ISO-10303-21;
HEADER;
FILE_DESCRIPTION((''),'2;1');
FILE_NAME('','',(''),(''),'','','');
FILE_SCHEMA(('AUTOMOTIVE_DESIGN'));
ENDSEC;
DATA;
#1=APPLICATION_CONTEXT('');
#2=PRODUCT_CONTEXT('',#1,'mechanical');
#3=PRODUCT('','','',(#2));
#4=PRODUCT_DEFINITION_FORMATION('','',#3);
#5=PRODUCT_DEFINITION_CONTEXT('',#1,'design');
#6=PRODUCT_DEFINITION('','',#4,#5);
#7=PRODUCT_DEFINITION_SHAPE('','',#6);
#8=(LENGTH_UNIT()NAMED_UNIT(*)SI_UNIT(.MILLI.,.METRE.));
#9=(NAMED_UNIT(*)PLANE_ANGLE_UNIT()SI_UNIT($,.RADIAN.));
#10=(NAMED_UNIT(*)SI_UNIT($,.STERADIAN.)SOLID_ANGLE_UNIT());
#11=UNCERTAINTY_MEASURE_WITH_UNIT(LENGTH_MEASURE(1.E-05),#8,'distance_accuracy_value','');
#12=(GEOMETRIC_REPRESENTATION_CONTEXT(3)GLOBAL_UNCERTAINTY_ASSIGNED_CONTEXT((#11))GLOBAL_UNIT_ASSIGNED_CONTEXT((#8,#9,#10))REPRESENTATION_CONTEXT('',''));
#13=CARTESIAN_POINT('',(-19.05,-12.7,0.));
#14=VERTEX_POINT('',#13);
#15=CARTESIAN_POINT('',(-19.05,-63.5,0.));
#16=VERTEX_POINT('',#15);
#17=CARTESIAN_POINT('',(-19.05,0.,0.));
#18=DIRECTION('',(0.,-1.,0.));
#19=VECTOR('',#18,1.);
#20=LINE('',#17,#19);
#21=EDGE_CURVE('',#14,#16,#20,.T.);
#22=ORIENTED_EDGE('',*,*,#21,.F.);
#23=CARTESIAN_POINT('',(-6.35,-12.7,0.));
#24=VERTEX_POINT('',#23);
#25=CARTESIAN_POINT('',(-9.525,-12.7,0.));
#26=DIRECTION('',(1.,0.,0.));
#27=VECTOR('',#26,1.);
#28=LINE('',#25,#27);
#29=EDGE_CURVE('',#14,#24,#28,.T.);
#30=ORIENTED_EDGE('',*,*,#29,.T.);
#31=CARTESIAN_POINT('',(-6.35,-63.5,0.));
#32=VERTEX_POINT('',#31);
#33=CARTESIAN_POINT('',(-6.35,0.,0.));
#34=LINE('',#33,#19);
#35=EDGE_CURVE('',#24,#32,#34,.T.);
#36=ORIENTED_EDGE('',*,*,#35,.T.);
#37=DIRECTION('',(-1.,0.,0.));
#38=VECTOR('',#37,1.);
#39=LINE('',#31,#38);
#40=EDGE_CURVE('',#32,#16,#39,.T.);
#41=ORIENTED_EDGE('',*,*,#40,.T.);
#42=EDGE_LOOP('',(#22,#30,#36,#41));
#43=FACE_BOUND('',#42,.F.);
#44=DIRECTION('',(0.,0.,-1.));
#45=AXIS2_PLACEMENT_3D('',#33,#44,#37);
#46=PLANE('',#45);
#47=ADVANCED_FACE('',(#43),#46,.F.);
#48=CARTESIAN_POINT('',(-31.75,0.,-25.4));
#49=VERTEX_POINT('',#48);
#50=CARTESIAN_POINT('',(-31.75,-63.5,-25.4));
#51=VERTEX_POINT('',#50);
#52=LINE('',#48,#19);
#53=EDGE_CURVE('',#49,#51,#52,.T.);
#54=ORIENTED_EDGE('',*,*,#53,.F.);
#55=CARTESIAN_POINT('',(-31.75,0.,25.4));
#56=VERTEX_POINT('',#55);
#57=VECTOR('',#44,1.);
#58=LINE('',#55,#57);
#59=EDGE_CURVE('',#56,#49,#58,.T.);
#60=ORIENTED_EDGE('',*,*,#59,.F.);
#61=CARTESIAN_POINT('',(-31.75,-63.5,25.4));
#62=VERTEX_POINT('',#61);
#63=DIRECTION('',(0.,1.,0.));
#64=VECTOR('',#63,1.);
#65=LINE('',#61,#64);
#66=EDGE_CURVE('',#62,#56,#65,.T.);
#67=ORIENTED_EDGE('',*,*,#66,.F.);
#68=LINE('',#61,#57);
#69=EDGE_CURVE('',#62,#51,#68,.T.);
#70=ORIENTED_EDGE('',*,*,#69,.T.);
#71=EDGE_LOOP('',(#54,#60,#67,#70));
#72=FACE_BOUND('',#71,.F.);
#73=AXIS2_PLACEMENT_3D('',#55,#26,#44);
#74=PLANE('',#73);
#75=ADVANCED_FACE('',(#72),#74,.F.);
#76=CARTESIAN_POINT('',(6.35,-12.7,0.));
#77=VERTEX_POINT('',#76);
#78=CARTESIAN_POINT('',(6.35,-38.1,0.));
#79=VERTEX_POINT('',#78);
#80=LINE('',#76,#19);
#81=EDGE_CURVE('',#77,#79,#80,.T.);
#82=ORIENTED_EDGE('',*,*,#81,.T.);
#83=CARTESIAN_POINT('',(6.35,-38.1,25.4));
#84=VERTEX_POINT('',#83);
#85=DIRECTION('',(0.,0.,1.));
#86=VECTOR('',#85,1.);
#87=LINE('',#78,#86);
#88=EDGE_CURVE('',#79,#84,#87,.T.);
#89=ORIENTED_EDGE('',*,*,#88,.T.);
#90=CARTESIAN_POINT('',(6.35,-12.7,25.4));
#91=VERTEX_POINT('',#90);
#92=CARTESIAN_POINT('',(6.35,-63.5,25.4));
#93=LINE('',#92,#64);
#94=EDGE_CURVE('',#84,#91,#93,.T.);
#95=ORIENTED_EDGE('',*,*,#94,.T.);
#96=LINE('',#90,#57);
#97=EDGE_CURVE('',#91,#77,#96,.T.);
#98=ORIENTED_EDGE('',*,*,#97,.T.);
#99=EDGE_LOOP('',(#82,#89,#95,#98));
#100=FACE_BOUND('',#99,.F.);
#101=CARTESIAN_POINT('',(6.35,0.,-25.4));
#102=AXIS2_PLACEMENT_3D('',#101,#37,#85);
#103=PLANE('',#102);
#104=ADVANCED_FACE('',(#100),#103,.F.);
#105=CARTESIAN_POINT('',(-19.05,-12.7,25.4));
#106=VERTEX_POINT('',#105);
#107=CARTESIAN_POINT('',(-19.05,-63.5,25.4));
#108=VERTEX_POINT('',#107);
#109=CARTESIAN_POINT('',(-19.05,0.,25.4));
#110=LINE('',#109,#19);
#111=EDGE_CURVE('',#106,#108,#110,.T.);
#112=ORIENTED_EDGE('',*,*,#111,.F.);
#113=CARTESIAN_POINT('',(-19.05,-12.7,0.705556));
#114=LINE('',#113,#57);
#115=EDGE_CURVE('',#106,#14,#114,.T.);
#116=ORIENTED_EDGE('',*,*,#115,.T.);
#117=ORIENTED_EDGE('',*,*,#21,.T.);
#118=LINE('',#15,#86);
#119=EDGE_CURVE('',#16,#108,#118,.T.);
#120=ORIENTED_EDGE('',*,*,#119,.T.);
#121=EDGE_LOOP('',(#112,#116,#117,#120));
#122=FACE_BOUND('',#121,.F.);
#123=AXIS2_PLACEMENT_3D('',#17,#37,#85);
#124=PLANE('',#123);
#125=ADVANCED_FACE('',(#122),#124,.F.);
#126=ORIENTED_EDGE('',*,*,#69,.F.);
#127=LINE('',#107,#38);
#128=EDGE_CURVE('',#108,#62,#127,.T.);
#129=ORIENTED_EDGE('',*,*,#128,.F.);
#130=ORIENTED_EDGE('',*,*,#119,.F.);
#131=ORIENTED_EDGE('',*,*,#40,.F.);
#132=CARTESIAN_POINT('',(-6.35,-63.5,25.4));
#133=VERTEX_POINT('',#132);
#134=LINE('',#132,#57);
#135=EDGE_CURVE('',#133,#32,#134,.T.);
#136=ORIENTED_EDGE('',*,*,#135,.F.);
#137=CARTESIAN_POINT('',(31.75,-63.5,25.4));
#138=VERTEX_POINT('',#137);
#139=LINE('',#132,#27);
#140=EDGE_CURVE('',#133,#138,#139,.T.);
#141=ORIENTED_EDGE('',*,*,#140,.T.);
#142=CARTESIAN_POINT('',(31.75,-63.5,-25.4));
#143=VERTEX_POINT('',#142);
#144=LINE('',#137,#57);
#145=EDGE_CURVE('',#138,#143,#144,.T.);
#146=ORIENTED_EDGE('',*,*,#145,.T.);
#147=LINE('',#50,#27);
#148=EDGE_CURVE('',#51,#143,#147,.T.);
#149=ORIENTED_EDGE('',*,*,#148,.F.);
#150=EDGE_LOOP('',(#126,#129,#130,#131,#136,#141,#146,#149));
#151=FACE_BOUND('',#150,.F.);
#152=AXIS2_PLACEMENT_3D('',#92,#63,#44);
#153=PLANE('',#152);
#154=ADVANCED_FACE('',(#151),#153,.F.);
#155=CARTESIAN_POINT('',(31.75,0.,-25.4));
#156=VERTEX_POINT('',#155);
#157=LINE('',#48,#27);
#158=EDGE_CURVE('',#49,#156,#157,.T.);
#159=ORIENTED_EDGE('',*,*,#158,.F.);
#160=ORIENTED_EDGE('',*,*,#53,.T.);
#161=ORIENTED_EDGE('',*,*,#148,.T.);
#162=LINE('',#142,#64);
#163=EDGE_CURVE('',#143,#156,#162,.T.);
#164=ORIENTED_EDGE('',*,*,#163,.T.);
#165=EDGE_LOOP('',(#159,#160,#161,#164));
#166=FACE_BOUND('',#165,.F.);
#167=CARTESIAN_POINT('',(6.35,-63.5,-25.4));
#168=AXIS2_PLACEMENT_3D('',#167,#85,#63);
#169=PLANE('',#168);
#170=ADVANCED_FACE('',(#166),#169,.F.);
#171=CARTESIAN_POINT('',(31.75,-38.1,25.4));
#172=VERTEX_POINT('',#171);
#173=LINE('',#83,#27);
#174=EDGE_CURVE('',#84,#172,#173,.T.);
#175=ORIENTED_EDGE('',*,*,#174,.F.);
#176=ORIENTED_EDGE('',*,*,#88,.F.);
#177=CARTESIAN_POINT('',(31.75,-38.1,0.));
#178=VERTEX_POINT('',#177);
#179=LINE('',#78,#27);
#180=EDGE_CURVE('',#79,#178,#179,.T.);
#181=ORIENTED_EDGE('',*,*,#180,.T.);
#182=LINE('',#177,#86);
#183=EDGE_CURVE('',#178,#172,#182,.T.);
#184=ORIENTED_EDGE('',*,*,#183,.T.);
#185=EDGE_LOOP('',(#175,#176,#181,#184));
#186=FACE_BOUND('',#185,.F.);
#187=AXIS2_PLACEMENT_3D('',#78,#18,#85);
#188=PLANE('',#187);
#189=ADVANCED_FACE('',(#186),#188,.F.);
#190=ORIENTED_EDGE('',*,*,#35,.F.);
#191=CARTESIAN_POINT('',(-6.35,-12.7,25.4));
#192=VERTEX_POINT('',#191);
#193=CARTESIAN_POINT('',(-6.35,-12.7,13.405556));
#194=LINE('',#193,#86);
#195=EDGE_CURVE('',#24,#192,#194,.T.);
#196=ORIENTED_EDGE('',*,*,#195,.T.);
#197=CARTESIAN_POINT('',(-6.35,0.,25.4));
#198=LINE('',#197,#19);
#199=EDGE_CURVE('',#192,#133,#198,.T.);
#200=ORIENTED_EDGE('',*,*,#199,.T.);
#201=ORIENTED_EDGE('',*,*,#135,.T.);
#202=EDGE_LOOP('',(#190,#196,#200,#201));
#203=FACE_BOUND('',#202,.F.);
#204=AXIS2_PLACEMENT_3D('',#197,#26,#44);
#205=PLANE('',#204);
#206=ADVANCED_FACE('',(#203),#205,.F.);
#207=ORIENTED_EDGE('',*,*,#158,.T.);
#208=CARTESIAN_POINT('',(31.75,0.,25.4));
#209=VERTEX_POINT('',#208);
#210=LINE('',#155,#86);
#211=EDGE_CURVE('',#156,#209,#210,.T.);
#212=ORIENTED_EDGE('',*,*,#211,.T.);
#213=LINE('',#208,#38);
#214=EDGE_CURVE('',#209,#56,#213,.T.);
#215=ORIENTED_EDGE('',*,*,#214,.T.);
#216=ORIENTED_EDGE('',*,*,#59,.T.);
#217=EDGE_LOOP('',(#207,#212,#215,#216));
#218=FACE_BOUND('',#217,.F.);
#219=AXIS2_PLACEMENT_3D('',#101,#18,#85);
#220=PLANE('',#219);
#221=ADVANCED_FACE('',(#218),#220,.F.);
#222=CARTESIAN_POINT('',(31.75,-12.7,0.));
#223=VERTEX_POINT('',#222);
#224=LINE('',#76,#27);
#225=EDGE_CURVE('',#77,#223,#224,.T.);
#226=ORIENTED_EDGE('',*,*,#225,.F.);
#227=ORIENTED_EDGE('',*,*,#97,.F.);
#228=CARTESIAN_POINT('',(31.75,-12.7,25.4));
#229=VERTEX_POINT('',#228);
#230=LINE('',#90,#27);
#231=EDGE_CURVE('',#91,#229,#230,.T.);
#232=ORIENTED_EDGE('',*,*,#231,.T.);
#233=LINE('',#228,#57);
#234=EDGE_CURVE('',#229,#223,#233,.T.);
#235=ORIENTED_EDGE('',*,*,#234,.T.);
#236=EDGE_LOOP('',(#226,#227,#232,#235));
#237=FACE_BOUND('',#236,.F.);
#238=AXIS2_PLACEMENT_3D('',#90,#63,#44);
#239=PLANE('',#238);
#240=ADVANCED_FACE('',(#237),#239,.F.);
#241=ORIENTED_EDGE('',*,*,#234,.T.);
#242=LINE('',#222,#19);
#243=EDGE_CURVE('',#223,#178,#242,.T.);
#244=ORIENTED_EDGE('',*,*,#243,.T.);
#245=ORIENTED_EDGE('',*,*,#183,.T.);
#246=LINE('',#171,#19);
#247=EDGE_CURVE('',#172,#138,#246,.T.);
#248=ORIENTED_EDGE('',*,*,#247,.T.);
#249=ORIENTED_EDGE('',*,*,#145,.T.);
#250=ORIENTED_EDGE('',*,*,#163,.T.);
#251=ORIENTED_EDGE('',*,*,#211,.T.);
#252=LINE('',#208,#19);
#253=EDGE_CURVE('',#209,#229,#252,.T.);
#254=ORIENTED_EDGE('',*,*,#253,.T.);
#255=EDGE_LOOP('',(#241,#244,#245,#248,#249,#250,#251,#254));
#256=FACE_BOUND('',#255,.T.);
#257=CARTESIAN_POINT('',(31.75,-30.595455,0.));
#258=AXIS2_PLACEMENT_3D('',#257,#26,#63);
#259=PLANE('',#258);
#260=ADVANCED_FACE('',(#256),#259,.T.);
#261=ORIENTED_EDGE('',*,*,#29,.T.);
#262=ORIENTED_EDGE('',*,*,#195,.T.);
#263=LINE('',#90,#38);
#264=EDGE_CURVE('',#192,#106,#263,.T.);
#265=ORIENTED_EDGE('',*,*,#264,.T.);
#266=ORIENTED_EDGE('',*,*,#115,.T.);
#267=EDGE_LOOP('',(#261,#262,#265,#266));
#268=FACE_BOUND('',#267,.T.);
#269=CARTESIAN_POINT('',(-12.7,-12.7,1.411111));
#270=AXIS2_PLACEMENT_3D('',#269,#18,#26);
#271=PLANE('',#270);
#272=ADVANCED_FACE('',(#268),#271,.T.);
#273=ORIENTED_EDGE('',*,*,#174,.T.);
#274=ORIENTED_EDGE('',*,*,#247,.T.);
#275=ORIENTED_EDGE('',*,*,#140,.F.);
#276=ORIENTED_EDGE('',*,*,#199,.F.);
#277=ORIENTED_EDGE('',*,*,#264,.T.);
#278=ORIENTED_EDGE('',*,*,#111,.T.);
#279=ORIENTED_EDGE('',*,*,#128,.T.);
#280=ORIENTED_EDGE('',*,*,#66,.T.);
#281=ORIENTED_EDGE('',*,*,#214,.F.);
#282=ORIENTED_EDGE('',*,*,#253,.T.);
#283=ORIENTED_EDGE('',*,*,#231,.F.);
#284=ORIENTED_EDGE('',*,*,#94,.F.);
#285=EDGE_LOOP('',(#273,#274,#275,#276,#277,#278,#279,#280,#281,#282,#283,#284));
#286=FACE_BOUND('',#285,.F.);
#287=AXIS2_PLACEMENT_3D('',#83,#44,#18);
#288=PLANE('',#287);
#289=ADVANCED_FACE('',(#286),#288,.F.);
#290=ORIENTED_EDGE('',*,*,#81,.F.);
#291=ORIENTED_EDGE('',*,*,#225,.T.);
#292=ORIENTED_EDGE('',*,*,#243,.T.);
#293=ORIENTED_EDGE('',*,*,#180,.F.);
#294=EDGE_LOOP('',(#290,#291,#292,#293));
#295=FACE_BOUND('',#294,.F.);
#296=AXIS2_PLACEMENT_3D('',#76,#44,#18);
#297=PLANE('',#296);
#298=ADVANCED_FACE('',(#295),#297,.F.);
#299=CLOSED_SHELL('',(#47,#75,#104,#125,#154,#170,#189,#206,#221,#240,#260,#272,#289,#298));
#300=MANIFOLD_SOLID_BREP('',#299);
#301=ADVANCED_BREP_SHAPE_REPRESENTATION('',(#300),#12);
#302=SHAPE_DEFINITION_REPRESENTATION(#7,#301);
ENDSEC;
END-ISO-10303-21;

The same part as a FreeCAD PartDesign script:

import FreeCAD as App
import Part
import Sketcher
from FreeCAD import Vector
Q = App.Units.Quantity


def add_polygon(sketch, points):
    """Adds a closed chain of lines whose ends are joined by coincident constraints."""
    first, n = sketch.GeometryCount, len(points)
    for a, b in zip(points, points[1:] + points[:1]):
        sketch.addGeometry(Part.LineSegment(App.Vector(*a, 0), App.Vector(*b, 0)), False)
    for i in range(n):
        sketch.addConstraint(Sketcher.Constraint("Coincident", first + i, 2, first + (i + 1) % n, 1))

doc = App.newDocument("Part")
body = doc.addObject("PartDesign::Body", "Body")

# Sketch on XZ plane
sketch1 = body.newObject("Sketcher::SketchObject", "Sketch")
sketch1.AttachmentSupport = (doc.getObject("XZ_Plane"), [""])
sketch1.MapMode = "FlatFace"
add_polygon(sketch1, [(-32, 25), (-32, -25), (6, -25), (6, 25)])  # lines 0-3
sketch1.addConstraint([
    Sketcher.Constraint("Vertical", 0),
    Sketcher.Constraint("Horizontal", 1),
    Sketcher.Constraint("Vertical", 2),
    Sketcher.Constraint("Horizontal", 3),
    Sketcher.Constraint("DistanceY", 0, 2, 0, 1, Q("2 in")),
    Sketcher.Constraint("DistanceX", 1, 1, 1, 2, Q("1.5 in")),
    Sketcher.Constraint("DistanceY", 0, 2, -1, 1, Q("1 in")),
    Sketcher.Constraint("DistanceX", 0, 2, -1, 1, Q("1.25 in")),
])
pad1 = body.newObject("PartDesign::Pad", "Pad")
pad1.Profile = sketch1
pad1.Length = Q("0.5 in")

# Sketch on XZ plane
sketch2 = body.newObject("Sketcher::SketchObject", "Sketch001")
sketch2.AttachmentSupport = (doc.getObject("XZ_Plane"), [""])
sketch2.MapMode = "FlatFace"
add_polygon(sketch2, [(-19, 25), (-32, 25), (-32, -25), (6, -25), (6, 25), (-6, 25), (-6, 0), (-19, 0)])  # lines 0-7
sketch2.addConstraint([
    Sketcher.Constraint("Horizontal", 0),
    Sketcher.Constraint("Vertical", 1),
    Sketcher.Constraint("Horizontal", 2),
    Sketcher.Constraint("Vertical", 3),
    Sketcher.Constraint("Horizontal", 4),
    Sketcher.Constraint("Vertical", 5),
    Sketcher.Constraint("Horizontal", 6),
    Sketcher.Constraint("Vertical", 7),
    Sketcher.Constraint("Symmetric", 2, 2, 4, 2, -1, 1),
    Sketcher.Constraint("PointOnObject", 5, 2, -1),
    Sketcher.Constraint("Horizontal", 0, 2, 3, 2),
    Sketcher.Constraint("Equal", 0, 4),
    Sketcher.Constraint("Equal", 4, 6),
    Sketcher.Constraint("DistanceY", 1, 2, 1, 1, Q("2 in")),
    Sketcher.Constraint("DistanceX", 0, 2, 0, 1, Q("0.5 in")),
])
pad2 = body.newObject("PartDesign::Pad", "Pad001")
pad2.Profile = sketch2
pad2.Length = Q("2.5 in")

# Sketch on YZ plane
sketch3 = body.newObject("Sketcher::SketchObject", "Sketch002")
sketch3.AttachmentSupport = (doc.getObject("YZ_Plane"), [""])
sketch3.MapMode = "FlatFace"
sketch3.AttachmentOffset = App.Placement(Vector(0, 0, 0.25 * 25.4), App.Rotation())
add_polygon(sketch3, [(-38, 0), (-38, 25), (-64, 25), (-64, -25), (0, -25), (0, 25), (-13, 25), (-13, 0)])  # lines 0-7
sketch3.addConstraint([
    Sketcher.Constraint("Vertical", 0),
    Sketcher.Constraint("Horizontal", 1),
    Sketcher.Constraint("Vertical", 2),
    Sketcher.Constraint("Horizontal", 3),
    Sketcher.Constraint("Vertical", 4),
    Sketcher.Constraint("Horizontal", 5),
    Sketcher.Constraint("Vertical", 6),
    Sketcher.Constraint("Horizontal", 7),
    Sketcher.Constraint("Symmetric", 3, 2, 4, 2, -1, 1),
    Sketcher.Constraint("PointOnObject", 6, 2, -1),
    Sketcher.Constraint("Horizontal", 1, 2, 4, 2),
    Sketcher.Constraint("Equal", 1, 7),
    Sketcher.Constraint("Equal", 7, 0),
    Sketcher.Constraint("DistanceX", 1, 2, 1, 1, Q("1 in")),
    Sketcher.Constraint("DistanceX", 3, 1, 3, 2, Q("2.5 in")),
])
pad3 = body.newObject("PartDesign::Pad", "Pad002")
pad3.Profile = sketch3
pad3.Length = Q("1 in")

doc.recompute()
